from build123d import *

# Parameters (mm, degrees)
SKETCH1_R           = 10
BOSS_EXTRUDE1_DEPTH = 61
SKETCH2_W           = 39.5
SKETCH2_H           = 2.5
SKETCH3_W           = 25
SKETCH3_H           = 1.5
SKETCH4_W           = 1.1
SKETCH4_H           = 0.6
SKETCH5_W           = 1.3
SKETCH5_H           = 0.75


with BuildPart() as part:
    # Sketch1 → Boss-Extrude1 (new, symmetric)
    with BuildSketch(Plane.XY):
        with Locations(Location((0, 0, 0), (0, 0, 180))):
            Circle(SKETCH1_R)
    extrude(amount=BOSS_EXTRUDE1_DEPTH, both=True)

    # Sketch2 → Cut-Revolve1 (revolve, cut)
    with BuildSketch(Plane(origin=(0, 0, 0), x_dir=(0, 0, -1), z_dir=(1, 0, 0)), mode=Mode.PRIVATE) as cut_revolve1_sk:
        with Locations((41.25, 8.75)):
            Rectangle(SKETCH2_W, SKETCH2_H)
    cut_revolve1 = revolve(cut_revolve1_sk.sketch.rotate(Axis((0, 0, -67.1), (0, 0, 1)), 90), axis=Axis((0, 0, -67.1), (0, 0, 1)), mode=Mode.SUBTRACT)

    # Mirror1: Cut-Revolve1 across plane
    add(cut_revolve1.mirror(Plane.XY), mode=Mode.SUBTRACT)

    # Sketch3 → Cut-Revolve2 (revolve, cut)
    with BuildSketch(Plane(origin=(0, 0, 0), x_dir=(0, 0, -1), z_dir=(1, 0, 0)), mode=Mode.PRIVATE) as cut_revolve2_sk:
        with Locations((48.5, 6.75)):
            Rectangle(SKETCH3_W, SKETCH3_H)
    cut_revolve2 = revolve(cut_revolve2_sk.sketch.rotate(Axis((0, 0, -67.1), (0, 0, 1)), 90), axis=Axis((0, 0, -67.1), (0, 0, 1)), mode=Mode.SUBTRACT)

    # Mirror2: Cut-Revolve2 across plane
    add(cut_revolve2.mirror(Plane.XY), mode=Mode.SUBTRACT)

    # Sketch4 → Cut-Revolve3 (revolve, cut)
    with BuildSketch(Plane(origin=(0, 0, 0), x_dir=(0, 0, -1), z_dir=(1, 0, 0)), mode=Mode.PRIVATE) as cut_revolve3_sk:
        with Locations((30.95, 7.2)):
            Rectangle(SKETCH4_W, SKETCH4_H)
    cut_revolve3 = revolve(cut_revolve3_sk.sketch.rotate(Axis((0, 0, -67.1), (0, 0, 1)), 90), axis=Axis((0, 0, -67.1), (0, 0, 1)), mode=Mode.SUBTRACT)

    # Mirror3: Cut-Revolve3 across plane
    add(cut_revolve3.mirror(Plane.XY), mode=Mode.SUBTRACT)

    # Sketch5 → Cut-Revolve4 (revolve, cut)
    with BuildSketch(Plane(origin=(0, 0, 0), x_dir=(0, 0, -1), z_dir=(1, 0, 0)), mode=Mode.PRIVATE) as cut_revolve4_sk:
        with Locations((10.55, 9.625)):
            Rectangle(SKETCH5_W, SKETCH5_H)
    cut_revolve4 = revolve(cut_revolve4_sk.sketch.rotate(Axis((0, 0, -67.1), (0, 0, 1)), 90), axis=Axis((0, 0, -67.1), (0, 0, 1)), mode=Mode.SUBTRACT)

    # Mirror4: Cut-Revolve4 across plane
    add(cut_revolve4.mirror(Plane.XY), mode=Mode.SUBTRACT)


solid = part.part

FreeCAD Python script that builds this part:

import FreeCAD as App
import Part
import Sketcher
Q = App.Units.Quantity


def add_polygon(sketch, points):
    """Adds a closed chain of lines whose ends are joined by coincident constraints."""
    first, n = sketch.GeometryCount, len(points)
    for a, b in zip(points, points[1:] + points[:1]):
        sketch.addGeometry(Part.LineSegment(App.Vector(*a, 0), App.Vector(*b, 0)), False)
    for i in range(n):
        sketch.addConstraint(Sketcher.Constraint("Coincident", first + i, 2, first + (i + 1) % n, 1))

doc = App.newDocument("Part")
body = doc.addObject("PartDesign::Body", "Body")

# Sketch on XY plane
sketch1 = body.newObject("Sketcher::SketchObject", "Sketch")
sketch1.AttachmentSupport = (doc.getObject("XY_Plane"), [""])
sketch1.MapMode = "FlatFace"
sketch1.addGeometry(Part.Circle(App.Vector(0, 0, 0), App.Vector(0, 0, 1), 10), False)
sketch1.addConstraint([
    Sketcher.Constraint("Coincident", 0, 3, -1, 1),
    Sketcher.Constraint("Diameter", 0, Q("20 mm")),
])
pad1 = body.newObject("PartDesign::Pad", "Pad")
pad1.Profile = sketch1
pad1.Length = 122
pad1.Midplane = True

# Sketch on YZ plane
sketch2 = body.newObject("Sketcher::SketchObject", "Sketch001")
sketch2.AttachmentSupport = (doc.getObject("YZ_Plane"), [""])
sketch2.MapMode = "FlatFace"
add_polygon(sketch2, [(10, -21.5), (7.5, -21.5), (7.5, -61), (10, -61)])  # lines 0-3
sketch2.addConstraint([
    Sketcher.Constraint("Horizontal", 0),
    Sketcher.Constraint("Vertical", 1),
    Sketcher.Constraint("Horizontal", 2),
    Sketcher.Constraint("Vertical", 3),
    Sketcher.Constraint("DistanceX", 0, 2, 0, 1, Q("2.5 mm")),
    Sketcher.Constraint("DistanceY", 1, 2, 1, 1, Q("39.5 mm")),
    Sketcher.Constraint("DistanceY", 1, 2, -1, 1, Q("61 mm")),
    Sketcher.Constraint("DistanceX", -1, 1, 2, 2, Q("10 mm")),
])
groove = body.newObject("PartDesign::Groove", "Groove")
groove.Profile = sketch2
groove.ReferenceAxis = (sketch2, ["V_Axis"])
groove.Angle = 360
doc.recompute()

mirrored = body.newObject("PartDesign::Mirrored", "Mirrored")
mirrored.Originals = [groove]
mirrored.MirrorPlane = (doc.getObject("XY_Plane"), [""])
body.Tip = mirrored

# Sketch on YZ plane
sketch3 = body.newObject("Sketcher::SketchObject", "Sketch002")
sketch3.AttachmentSupport = (doc.getObject("YZ_Plane"), [""])
sketch3.MapMode = "FlatFace"
add_polygon(sketch3, [(7.5, -36), (6, -36), (6, -61), (7.5, -61)])  # lines 0-3
sketch3.addConstraint([
    Sketcher.Constraint("Horizontal", 0),
    Sketcher.Constraint("Vertical", 1),
    Sketcher.Constraint("Horizontal", 2),
    Sketcher.Constraint("Vertical", 3),
    Sketcher.Constraint("DistanceY", 1, 2, 1, 1, Q("25 mm")),
    Sketcher.Constraint("DistanceX", 0, 2, 0, 1, Q("1.5 mm")),
    Sketcher.Constraint("DistanceX", -1, 1, 0, 2, Q("6 mm")),
    Sketcher.Constraint("DistanceY", 0, 2, -1, 1, Q("36 mm")),
])
groove2 = body.newObject("PartDesign::Groove", "Groove001")
groove2.Profile = sketch3
groove2.ReferenceAxis = (sketch3, ["V_Axis"])
groove2.Angle = 360
doc.recompute()

mirrored2 = body.newObject("PartDesign::Mirrored", "Mirrored001")
mirrored2.Originals = [groove2]
mirrored2.MirrorPlane = (doc.getObject("XY_Plane"), [""])
body.Tip = mirrored2

# Sketch on YZ plane
sketch4 = body.newObject("Sketcher::SketchObject", "Sketch003")
sketch4.AttachmentSupport = (doc.getObject("YZ_Plane"), [""])
sketch4.MapMode = "FlatFace"
add_polygon(sketch4, [(7.5, -30.4), (6.9, -30.4), (6.9, -31.5), (7.5, -31.5)])  # lines 0-3
sketch4.addConstraint([
    Sketcher.Constraint("Horizontal", 0),
    Sketcher.Constraint("Vertical", 1),
    Sketcher.Constraint("Horizontal", 2),
    Sketcher.Constraint("Vertical", 3),
    Sketcher.Constraint("DistanceX", 0, 2, 0, 1, Q("0.6 mm")),
    Sketcher.Constraint("DistanceY", 1, 2, 1, 1, Q("1.1 mm")),
    Sketcher.Constraint("DistanceX", -1, 1, 0, 2, Q("6.9 mm")),
    Sketcher.Constraint("DistanceY", 0, 2, -1, 1, Q("30.4 mm")),
])
groove3 = body.newObject("PartDesign::Groove", "Groove002")
groove3.Profile = sketch4
groove3.ReferenceAxis = (sketch4, ["V_Axis"])
groove3.Angle = 360
doc.recompute()

mirrored3 = body.newObject("PartDesign::Mirrored", "Mirrored002")
mirrored3.Originals = [groove3]
mirrored3.MirrorPlane = (doc.getObject("XY_Plane"), [""])
body.Tip = mirrored3

# Sketch on YZ plane
sketch5 = body.newObject("Sketcher::SketchObject", "Sketch004")
sketch5.AttachmentSupport = (doc.getObject("YZ_Plane"), [""])
sketch5.MapMode = "FlatFace"
add_polygon(sketch5, [(10, -9.9), (9.2, -9.9), (9.2, -11.2), (10, -11.2)])  # lines 0-3
sketch5.addConstraint([
    Sketcher.Constraint("Horizontal", 0),
    Sketcher.Constraint("Vertical", 1),
    Sketcher.Constraint("Horizontal", 2),
    Sketcher.Constraint("Vertical", 3),
    Sketcher.Constraint("DistanceY", 1, 2, 1, 1, Q("1.3 mm")),
    Sketcher.Constraint("DistanceX", -1, 1, 2, 2, Q("10 mm")),
    Sketcher.Constraint("DistanceX", 0, 2, 0, 1, Q("0.75 mm")),
    Sketcher.Constraint("DistanceY", 0, 2, -1, 1, Q("9.9 mm")),
])
groove4 = body.newObject("PartDesign::Groove", "Groove003")
groove4.Profile = sketch5
groove4.ReferenceAxis = (sketch5, ["V_Axis"])
groove4.Angle = 360
doc.recompute()

mirrored4 = body.newObject("PartDesign::Mirrored", "Mirrored003")
mirrored4.Originals = [groove4]
mirrored4.MirrorPlane = (doc.getObject("XY_Plane"), [""])
body.Tip = mirrored4

doc.recompute()
